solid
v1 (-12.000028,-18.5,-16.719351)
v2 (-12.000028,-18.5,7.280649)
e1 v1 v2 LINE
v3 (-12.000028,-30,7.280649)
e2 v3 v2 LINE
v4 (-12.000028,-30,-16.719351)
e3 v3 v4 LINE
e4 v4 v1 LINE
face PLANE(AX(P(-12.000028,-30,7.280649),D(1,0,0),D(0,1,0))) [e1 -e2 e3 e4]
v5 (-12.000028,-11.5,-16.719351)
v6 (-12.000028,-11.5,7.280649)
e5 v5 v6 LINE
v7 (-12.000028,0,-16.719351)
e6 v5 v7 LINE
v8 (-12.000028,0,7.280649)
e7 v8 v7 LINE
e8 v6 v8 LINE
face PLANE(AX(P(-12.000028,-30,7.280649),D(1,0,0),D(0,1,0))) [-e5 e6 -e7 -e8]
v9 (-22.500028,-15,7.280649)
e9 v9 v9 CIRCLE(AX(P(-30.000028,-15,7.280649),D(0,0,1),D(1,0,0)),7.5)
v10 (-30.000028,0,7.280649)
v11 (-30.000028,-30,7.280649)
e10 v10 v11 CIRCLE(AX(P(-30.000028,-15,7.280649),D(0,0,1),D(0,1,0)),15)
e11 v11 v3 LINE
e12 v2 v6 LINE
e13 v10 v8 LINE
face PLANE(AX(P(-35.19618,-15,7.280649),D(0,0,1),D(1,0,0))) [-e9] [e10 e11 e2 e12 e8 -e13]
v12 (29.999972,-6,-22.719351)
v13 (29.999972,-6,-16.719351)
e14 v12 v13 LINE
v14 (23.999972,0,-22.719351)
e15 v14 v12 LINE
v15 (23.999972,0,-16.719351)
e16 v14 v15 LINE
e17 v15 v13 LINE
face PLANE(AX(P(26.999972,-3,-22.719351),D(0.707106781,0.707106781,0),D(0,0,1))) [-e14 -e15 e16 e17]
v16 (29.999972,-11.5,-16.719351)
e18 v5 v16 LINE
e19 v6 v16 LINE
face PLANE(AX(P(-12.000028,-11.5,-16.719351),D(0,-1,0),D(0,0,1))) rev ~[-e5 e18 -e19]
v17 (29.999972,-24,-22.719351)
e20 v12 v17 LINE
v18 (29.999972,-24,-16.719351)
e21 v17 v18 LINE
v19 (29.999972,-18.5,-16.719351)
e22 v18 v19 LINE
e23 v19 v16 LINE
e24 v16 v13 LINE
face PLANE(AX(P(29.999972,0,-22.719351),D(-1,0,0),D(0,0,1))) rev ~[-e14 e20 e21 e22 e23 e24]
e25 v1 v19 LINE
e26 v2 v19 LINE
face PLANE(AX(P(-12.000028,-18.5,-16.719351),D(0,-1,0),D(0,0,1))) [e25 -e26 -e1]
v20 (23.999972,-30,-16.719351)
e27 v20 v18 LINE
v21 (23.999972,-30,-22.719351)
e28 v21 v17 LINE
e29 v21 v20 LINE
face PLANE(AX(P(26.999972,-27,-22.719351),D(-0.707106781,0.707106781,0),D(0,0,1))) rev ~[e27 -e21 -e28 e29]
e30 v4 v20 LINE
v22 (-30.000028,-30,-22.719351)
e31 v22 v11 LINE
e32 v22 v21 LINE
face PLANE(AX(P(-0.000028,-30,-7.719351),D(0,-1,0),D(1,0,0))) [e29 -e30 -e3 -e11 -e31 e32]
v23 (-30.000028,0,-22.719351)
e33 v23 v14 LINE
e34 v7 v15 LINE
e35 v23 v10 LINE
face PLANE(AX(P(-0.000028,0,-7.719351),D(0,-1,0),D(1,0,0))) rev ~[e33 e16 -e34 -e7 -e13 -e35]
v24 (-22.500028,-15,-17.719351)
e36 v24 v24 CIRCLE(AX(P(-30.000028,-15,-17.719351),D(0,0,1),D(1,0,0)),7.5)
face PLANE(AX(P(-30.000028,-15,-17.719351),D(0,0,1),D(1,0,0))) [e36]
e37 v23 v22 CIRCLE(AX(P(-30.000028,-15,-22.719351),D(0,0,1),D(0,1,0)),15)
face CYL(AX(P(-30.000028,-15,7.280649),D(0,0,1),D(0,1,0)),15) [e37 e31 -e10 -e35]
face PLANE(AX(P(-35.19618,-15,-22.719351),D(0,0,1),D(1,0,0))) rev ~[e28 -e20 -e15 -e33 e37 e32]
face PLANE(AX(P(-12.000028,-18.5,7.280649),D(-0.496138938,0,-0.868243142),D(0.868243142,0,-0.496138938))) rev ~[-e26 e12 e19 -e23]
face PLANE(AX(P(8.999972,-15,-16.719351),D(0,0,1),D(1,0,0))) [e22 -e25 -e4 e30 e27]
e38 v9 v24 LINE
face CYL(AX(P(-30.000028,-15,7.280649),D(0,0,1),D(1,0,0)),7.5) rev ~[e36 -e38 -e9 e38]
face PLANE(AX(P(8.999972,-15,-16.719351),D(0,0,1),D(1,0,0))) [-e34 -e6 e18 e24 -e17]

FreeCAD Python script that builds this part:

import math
import FreeCAD as App
import Part
import Sketcher
Q = App.Units.Quantity


def edges_at(feature, points):
    """Names of the edges that pass closest to the given points."""
    edges = feature.Shape.Edges
    near = lambda p: min(range(len(edges)), key=lambda i: edges[i].distToShape(Part.Vertex(*p))[0])
    return sorted({f"Edge{near(p) + 1}" for p in points})


def add_polygon(sketch, points):
    """Adds a closed chain of lines whose ends are joined by coincident constraints."""
    first, n = sketch.GeometryCount, len(points)
    for a, b in zip(points, points[1:] + points[:1]):
        sketch.addGeometry(Part.LineSegment(App.Vector(*a, 0), App.Vector(*b, 0)), False)
    for i in range(n):
        sketch.addConstraint(Sketcher.Constraint("Coincident", first + i, 2, first + (i + 1) % n, 1))

doc = App.newDocument("Part")
body = doc.addObject("PartDesign::Body", "Body")

# Sketch on XZ plane
sketch1 = body.newObject("Sketcher::SketchObject", "Sketch")
sketch1.AttachmentSupport = (doc.getObject("XZ_Plane"), [""])
sketch1.MapMode = "FlatFace"
add_polygon(sketch1, [(-30.000028, 7.280649), (-30.000028, -22.719351), (29.999972, -22.719351), (29.999972, 7.280649)])  # lines 0-3
sketch1.addConstraint(Sketcher.Constraint("Vertical", 0))
sketch1.addConstraint(Sketcher.Constraint("Horizontal", 1))
sketch1.addConstraint(Sketcher.Constraint("Vertical", 2))
sketch1.addConstraint(Sketcher.Constraint("Horizontal", 3))
sketch1.addConstraint(Sketcher.Constraint("DistanceX", 1, 1, 1, 2, Q("60 mm")))
sketch1.addConstraint(Sketcher.Constraint("DistanceY", 0, 2, 0, 1, Q("30 mm")))
sketch1.addConstraint(Sketcher.Constraint("DistanceX", 0, 2, -1, 1, Q("30.000028 mm")))
sketch1.addConstraint(Sketcher.Constraint("DistanceY", 0, 2, -1, 1, Q("22.719351 mm")))
pad1 = body.newObject("PartDesign::Pad", "Pad")
pad1.Profile = sketch1
pad1.Length = 30

# Sketch on XY plane
sketch2 = body.newObject("Sketcher::SketchObject", "Sketch001")
sketch2.AttachmentSupport = (doc.getObject("XY_Plane"), [""])
sketch2.MapMode = "FlatFace"
sketch2.AttachmentOffset = App.Placement(App.Vector(0, 0, 7.280649), App.Rotation())
sketch2.addGeometry(Part.LineSegment(App.Vector(-30.000028, -30, 0), App.Vector(-30.000028, 0, 0)), False)
sketch2.addGeometry(Part.ArcOfCircle(Part.Circle(App.Vector(-30.000028, -15, 0), App.Vector(0, 0, 1), 15), math.radians(90), math.radians(270)), False)
sketch2.addConstraint(Sketcher.Constraint("Coincident", 0, 1, 1, 2))
sketch2.addConstraint(Sketcher.Constraint("Coincident", 1, 1, 0, 2))
sketch2.addConstraint(Sketcher.Constraint("Vertical", 0))
sketch2.addConstraint(Sketcher.Constraint("PointOnObject", 1, 1, -1))
sketch2.addConstraint(Sketcher.Constraint("Vertical", 1, 3, 0, 1))
sketch2.addConstraint(Sketcher.Constraint("Radius", 1, Q("15 mm")))
sketch2.addConstraint(Sketcher.Constraint("DistanceX", 1, 3, -1, 1, Q("30.000028 mm")))
pad2 = body.newObject("PartDesign::Pad", "Pad001")
pad2.Profile = sketch2
pad2.Length = 30
pad2.Reversed = True

# Sketch on XY plane
sketch3 = body.newObject("Sketcher::SketchObject", "Sketch002")
sketch3.AttachmentSupport = (doc.getObject("XY_Plane"), [""])
sketch3.MapMode = "FlatFace"
sketch3.AttachmentOffset = App.Placement(App.Vector(0, 0, 7.280649), App.Rotation())
add_polygon(sketch3, [(-12.000028, 0), (-12.000028, -30), (29.999972, -30), (29.999972, 0)])  # lines 0-3
sketch3.addConstraint(Sketcher.Constraint("Vertical", 0))
sketch3.addConstraint(Sketcher.Constraint("Horizontal", 1))
sketch3.addConstraint(Sketcher.Constraint("Vertical", 2))
sketch3.addConstraint(Sketcher.Constraint("Horizontal", 3))
sketch3.addConstraint(Sketcher.Constraint("PointOnObject", 2, 2, -1))
sketch3.addConstraint(Sketcher.Constraint("DistanceX", 1, 1, 1, 2, Q("42 mm")))
sketch3.addConstraint(Sketcher.Constraint("DistanceY", 0, 2, 0, 1, Q("30 mm")))
sketch3.addConstraint(Sketcher.Constraint("DistanceX", -1, 1, 1, 2, Q("29.999972 mm")))
pocket1 = body.newObject("PartDesign::Pocket", "Pocket")
pocket1.Profile = sketch3
pocket1.Length = 24

# Sketch on YZ plane
sketch4 = body.newObject("Sketcher::SketchObject", "Sketch003")
sketch4.AttachmentSupport = (doc.getObject("YZ_Plane"), [""])
sketch4.MapMode = "FlatFace"
sketch4.AttachmentOffset = App.Placement(App.Vector(0, 0, -12.000028), App.Rotation())
add_polygon(sketch4, [(-18.5, 7.280649), (-18.5, -16.719351), (-11.5, -16.719351), (-11.5, 7.280649)])  # lines 0-3
sketch4.addConstraint(Sketcher.Constraint("Vertical", 0))
sketch4.addConstraint(Sketcher.Constraint("Horizontal", 1))
sketch4.addConstraint(Sketcher.Constraint("Vertical", 2))
sketch4.addConstraint(Sketcher.Constraint("Horizontal", 3))
sketch4.addConstraint(Sketcher.Constraint("DistanceX", 1, 1, 1, 2, Q("7 mm")))
sketch4.addConstraint(Sketcher.Constraint("DistanceY", 0, 2, 0, 1, Q("24 mm")))
sketch4.addConstraint(Sketcher.Constraint("DistanceX", 0, 2, -1, 1, Q("18.5 mm")))
sketch4.addConstraint(Sketcher.Constraint("DistanceY", 0, 2, -1, 1, Q("16.719351 mm")))
pad3 = body.newObject("PartDesign::Pad", "Pad002")
pad3.Profile = sketch4
pad3.Length = 42

# Sketch on XZ plane
sketch5 = body.newObject("Sketcher::SketchObject", "Sketch004")
sketch5.AttachmentSupport = (doc.getObject("XZ_Plane"), [""])
sketch5.MapMode = "FlatFace"
sketch5.AttachmentOffset = App.Placement(App.Vector(0, 0, 18.5), App.Rotation())
add_polygon(sketch5, [(29.999972, 7.280649), (-12.000028, 7.280649), (29.999972, -16.719351)])  # lines 0-2
sketch5.addConstraint(Sketcher.Constraint("Horizontal", 0))
sketch5.addConstraint(Sketcher.Constraint("Vertical", 2))
sketch5.addConstraint(Sketcher.Constraint("DistanceX", 0, 2, 0, 1, Q("42 mm")))
sketch5.addConstraint(Sketcher.Constraint("DistanceY", 2, 1, 2, 2, Q("24 mm")))
sketch5.addConstraint(Sketcher.Constraint("DistanceY", -1, 1, 0, 2, Q("7.280649 mm")))
sketch5.addConstraint(Sketcher.Constraint("DistanceX", -1, 1, 1, 2, Q("29.999972 mm")))
pocket2 = body.newObject("PartDesign::Pocket", "Pocket001")
pocket2.Profile = sketch5
pocket2.Length = 25

# Sketch on XY plane
sketch6 = body.newObject("Sketcher::SketchObject", "Sketch005")
sketch6.AttachmentSupport = (doc.getObject("XY_Plane"), [""])
sketch6.MapMode = "FlatFace"
sketch6.AttachmentOffset = App.Placement(App.Vector(0, 0, 7.280649), App.Rotation())
sketch6.addGeometry(Part.Circle(App.Vector(-30.000028, -15, 0), App.Vector(0, 0, 1), 7.5), False)
sketch6.addConstraint(Sketcher.Constraint("Diameter", 0, Q("15 mm")))
sketch6.addConstraint(Sketcher.Constraint("DistanceY", 0, 3, -1, 1, Q("15 mm")))
sketch6.addConstraint(Sketcher.Constraint("DistanceX", 0, 3, -1, 1, Q("30.000028 mm")))
pocket3 = body.newObject("PartDesign::Pocket", "Pocket002")
pocket3.Profile = sketch6
pocket3.Length = 25
doc.recompute()

chamfer = body.newObject("PartDesign::Chamfer", "Chamfer")
chamfer.Base = (pocket3, edges_at(pocket3, [(30, -30, -19.719), (30, 0, -19.719)]))
chamfer.Size = 6

doc.recompute()
